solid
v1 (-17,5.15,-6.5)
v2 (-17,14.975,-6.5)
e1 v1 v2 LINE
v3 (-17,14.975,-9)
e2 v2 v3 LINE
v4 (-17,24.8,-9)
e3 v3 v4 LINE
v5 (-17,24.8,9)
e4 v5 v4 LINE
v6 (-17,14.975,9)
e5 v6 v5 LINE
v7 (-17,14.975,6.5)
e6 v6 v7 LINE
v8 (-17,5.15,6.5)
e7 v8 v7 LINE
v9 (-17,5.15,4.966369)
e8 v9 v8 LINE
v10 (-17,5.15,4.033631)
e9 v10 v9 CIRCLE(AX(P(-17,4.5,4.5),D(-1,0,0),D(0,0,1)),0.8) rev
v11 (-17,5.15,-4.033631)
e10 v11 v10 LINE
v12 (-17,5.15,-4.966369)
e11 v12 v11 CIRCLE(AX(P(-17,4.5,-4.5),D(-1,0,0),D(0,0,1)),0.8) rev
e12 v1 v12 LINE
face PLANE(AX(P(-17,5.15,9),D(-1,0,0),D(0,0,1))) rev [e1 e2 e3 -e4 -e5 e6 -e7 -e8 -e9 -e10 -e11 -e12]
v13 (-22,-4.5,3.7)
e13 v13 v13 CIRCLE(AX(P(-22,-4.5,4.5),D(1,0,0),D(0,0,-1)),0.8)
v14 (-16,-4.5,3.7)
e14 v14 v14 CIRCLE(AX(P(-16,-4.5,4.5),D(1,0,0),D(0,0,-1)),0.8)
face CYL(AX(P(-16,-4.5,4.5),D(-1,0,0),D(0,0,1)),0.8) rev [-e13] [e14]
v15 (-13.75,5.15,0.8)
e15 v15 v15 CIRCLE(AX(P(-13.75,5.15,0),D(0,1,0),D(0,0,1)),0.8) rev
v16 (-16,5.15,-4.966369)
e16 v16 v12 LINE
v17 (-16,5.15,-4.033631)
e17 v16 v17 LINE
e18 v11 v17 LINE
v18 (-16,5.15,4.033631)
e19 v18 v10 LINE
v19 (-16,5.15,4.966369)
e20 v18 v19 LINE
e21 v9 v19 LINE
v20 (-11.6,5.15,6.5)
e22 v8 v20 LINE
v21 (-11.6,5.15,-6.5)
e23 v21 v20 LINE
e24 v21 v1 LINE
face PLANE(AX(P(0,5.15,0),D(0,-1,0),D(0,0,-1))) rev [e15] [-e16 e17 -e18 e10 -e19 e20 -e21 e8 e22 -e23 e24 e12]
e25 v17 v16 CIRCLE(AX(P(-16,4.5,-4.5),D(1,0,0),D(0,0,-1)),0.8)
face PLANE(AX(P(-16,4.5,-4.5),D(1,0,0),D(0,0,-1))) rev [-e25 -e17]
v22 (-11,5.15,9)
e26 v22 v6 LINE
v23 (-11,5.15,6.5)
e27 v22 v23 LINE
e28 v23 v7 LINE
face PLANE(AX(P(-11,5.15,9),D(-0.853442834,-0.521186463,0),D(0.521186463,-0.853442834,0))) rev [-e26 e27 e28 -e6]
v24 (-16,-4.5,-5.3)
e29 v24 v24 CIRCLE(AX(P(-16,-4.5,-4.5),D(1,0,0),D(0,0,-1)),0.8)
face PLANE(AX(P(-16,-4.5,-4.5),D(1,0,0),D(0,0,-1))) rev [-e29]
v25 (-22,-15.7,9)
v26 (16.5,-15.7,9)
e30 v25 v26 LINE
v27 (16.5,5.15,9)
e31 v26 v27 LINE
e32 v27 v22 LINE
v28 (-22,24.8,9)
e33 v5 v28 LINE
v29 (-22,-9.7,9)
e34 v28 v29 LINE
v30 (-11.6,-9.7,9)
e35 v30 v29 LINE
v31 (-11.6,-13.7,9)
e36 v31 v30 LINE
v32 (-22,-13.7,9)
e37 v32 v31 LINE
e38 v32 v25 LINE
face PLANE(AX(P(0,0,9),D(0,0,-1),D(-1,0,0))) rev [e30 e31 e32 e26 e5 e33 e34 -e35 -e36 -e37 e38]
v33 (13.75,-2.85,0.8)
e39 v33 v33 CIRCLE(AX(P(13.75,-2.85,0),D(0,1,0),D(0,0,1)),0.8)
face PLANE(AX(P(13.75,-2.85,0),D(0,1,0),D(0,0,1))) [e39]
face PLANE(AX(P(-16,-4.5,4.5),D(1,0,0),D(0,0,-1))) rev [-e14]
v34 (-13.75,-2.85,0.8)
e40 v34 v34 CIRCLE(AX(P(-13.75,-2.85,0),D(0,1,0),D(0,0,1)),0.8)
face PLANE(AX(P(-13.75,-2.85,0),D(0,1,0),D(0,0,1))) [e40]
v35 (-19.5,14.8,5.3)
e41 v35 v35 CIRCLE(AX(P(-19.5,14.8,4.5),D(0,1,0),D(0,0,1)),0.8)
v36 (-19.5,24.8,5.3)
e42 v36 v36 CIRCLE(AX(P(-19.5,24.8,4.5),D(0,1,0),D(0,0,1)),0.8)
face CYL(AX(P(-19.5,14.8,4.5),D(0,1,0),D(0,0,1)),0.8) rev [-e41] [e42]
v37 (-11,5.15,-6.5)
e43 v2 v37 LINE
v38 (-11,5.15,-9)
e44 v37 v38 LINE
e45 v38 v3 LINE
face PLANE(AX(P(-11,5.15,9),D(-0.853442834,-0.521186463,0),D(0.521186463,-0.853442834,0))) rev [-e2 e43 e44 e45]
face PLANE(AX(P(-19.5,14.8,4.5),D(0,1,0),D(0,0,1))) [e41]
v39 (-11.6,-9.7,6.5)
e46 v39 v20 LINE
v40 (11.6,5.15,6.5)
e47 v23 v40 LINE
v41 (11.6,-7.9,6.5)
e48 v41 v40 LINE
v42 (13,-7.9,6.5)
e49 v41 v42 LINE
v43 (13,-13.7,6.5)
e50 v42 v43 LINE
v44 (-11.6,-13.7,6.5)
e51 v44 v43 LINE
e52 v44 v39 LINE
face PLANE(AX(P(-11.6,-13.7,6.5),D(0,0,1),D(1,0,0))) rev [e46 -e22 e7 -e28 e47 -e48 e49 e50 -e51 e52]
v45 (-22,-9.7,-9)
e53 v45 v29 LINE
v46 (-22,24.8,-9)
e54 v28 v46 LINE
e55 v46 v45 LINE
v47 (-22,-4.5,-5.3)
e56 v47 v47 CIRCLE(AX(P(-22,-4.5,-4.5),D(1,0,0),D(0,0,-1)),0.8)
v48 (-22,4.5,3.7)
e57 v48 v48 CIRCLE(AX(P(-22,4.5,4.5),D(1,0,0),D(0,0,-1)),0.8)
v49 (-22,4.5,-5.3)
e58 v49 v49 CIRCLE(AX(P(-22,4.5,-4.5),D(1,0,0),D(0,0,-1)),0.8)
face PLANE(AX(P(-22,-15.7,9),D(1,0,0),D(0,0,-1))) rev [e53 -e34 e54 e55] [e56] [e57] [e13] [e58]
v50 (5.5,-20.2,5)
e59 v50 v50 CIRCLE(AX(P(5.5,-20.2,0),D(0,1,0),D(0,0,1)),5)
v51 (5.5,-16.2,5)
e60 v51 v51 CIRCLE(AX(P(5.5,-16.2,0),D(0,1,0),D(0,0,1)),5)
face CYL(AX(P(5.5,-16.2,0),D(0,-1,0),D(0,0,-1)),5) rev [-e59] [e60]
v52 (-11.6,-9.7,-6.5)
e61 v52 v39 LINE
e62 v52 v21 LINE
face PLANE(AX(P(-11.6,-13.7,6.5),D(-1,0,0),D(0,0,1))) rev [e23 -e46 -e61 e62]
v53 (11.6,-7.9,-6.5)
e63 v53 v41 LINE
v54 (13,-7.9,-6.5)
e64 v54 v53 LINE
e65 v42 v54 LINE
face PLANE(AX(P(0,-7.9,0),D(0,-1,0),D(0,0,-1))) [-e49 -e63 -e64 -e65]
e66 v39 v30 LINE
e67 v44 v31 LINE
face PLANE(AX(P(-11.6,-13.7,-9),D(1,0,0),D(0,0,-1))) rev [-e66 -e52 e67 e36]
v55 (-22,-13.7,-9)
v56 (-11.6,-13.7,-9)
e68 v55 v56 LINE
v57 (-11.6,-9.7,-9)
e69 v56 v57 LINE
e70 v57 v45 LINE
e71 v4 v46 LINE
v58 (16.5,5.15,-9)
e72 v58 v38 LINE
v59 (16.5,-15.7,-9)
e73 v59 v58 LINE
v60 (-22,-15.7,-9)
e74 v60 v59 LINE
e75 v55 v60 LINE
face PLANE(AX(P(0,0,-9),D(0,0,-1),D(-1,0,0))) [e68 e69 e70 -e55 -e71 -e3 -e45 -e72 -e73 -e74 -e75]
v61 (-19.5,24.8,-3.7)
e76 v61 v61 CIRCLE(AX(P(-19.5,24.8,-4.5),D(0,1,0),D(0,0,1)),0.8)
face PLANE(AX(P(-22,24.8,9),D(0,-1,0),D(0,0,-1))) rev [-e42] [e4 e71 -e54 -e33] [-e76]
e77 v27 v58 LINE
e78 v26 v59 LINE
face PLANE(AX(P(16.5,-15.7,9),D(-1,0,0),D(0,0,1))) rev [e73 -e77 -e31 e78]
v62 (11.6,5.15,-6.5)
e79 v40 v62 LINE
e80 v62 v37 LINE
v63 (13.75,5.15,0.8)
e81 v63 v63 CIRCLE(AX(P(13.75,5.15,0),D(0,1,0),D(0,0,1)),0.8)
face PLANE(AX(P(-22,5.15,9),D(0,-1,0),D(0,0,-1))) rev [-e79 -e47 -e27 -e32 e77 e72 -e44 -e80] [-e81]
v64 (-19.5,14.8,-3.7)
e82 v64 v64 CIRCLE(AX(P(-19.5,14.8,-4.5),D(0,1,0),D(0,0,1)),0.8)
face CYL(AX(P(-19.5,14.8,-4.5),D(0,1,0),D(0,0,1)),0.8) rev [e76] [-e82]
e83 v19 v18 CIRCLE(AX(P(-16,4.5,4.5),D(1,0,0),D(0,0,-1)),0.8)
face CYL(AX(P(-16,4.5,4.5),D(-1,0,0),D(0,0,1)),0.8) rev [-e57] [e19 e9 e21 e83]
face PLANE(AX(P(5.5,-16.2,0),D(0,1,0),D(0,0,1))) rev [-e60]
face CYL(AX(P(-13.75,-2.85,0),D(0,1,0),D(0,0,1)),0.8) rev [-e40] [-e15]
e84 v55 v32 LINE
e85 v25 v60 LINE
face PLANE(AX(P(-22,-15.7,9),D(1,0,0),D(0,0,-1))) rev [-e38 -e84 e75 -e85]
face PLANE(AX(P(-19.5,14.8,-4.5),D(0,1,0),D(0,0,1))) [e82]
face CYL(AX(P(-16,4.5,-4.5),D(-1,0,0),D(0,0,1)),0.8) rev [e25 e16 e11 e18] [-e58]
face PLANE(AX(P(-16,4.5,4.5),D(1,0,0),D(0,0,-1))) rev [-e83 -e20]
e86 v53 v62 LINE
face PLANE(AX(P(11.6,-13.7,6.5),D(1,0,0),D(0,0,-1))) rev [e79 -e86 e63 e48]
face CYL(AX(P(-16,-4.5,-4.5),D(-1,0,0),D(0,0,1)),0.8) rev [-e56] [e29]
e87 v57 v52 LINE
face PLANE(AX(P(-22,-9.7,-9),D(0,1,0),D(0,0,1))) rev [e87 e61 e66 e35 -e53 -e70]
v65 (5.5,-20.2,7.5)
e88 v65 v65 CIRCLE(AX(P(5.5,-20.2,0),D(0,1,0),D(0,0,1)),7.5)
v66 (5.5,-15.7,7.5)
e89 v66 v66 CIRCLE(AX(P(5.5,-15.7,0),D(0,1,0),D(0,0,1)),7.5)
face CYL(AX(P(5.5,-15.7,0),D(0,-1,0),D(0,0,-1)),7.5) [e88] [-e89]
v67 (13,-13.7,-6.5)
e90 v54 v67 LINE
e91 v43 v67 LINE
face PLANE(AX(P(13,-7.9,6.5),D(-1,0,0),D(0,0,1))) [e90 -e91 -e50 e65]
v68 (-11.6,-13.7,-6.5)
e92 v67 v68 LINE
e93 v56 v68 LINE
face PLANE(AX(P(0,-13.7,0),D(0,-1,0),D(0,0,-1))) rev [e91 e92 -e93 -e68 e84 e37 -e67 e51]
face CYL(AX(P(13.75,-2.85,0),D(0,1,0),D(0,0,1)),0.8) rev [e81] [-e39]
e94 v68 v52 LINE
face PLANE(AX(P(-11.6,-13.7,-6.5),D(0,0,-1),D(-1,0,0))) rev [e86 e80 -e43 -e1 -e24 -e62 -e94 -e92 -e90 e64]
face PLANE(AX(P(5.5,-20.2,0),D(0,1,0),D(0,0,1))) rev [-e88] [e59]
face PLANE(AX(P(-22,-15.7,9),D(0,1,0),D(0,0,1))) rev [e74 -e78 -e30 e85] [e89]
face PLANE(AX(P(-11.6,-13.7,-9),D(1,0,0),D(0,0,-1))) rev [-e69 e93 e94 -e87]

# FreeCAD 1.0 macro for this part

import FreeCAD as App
import Part
import Sketcher


def add_polygon(sketch, points):
    """Adds a closed chain of lines whose ends are joined by coincident constraints."""
    first, n = sketch.GeometryCount, len(points)
    for a, b in zip(points, points[1:] + points[:1]):
        sketch.addGeometry(Part.LineSegment(App.Vector(*a, 0), App.Vector(*b, 0)), False)
    for i in range(n):
        sketch.addConstraint(Sketcher.Constraint("Coincident", first + i, 2, first + (i + 1) % n, 1))

doc = App.newDocument("Part")
body = doc.addObject("PartDesign::Body", "Body")

# Sketch on XY plane
sketch1 = body.newObject("Sketcher::SketchObject", "Sketch")
sketch1.AttachmentSupport = (doc.getObject("XY_Plane"), [""])
sketch1.MapMode = "FlatFace"
add_polygon(sketch1, [(-22, 5), (-22, -16), (16, -16), (16, 5)])  # lines 0-3
sketch1.addConstraint([
    Sketcher.Constraint("Vertical", 0),
    Sketcher.Constraint("Horizontal", 1),
    Sketcher.Constraint("Vertical", 2),
    Sketcher.Constraint("Horizontal", 3),
    Sketcher.Constraint("DistanceX", 1, 1, 1, 2, 38.5),
    Sketcher.Constraint("DistanceX", 0, 2, -1, 1, 22.0),
    Sketcher.Constraint("DistanceY", 0, 2, 0, 1, 20.85),
    Sketcher.Constraint("DistanceY", 0, 2, -1, 1, 15.7),
])
pad1 = body.newObject("PartDesign::Pad", "Pad")
pad1.Profile = sketch1
pad1.Length = 18
pad1.Midplane = True

# Sketch on XY plane
sketch2 = body.newObject("Sketcher::SketchObject", "Sketch001")
sketch2.AttachmentSupport = (doc.getObject("XY_Plane"), [""])
sketch2.MapMode = "FlatFace"
add_polygon(sketch2, [(-22, 25), (-22, 5), (-17, 5), (-17, 25)])  # lines 0-3
sketch2.addConstraint([
    Sketcher.Constraint("Vertical", 0),
    Sketcher.Constraint("Horizontal", 1),
    Sketcher.Constraint("Vertical", 2),
    Sketcher.Constraint("Horizontal", 3),
    Sketcher.Constraint("DistanceX", 1, 1, 1, 2, 5.0),
    Sketcher.Constraint("DistanceX", 0, 2, -1, 1, 22.0),
    Sketcher.Constraint("DistanceY", 0, 2, 0, 1, 19.65),
    Sketcher.Constraint("DistanceY", -1, 1, 2, 2, 24.8),
])
pad2 = body.newObject("PartDesign::Pad", "Pad001")
pad2.Profile = sketch2
pad2.Length = 18
pad2.Midplane = True

# Sketch on XZ plane
sketch3 = body.newObject("Sketcher::SketchObject", "Sketch002")
sketch3.AttachmentSupport = (doc.getObject("XZ_Plane"), [""])
sketch3.MapMode = "FlatFace"
sketch3.AttachmentOffset = App.Placement(App.Vector(0, 0, 20.2), App.Rotation())
sketch3.addGeometry(Part.Circle(App.Vector(6, 0, 0), App.Vector(0, 0, 1), 8), False)
sketch3.addConstraint([
    Sketcher.Constraint("PointOnObject", 0, 3, -1),
    Sketcher.Constraint("Diameter", 0, 15.0),
    Sketcher.Constraint("DistanceX", -1, 1, 0, 3, 5.5),
])
pad3 = body.newObject("PartDesign::Pad", "Pad002")
pad3.Profile = sketch3
pad3.Length = 4.5
pad3.Reversed = True

# Sketch on XZ plane
sketch4 = body.newObject("Sketcher::SketchObject", "Sketch003")
sketch4.AttachmentSupport = (doc.getObject("XZ_Plane"), [""])
sketch4.MapMode = "FlatFace"
sketch4.AttachmentOffset = App.Placement(App.Vector(0, 0, -5.15), App.Rotation())
add_polygon(sketch4, [(-12, -6), (-12, 6), (12, 6), (12, -6)])  # lines 0-3
sketch4.addConstraint([
    Sketcher.Constraint("Vertical", 0),
    Sketcher.Constraint("Horizontal", 1),
    Sketcher.Constraint("Vertical", 2),
    Sketcher.Constraint("Horizontal", 3),
    Sketcher.Constraint("Symmetric", 0, 2, 2, 2, -1, 1),
    Sketcher.Constraint("DistanceY", 0, 1, 0, 2, 13.0),
    Sketcher.Constraint("DistanceX", 1, 1, 1, 2, 23.2),
])
pocket1 = body.newObject("PartDesign::Pocket", "Pocket")
pocket1.Profile = sketch4
pocket1.Length = 18.85
pocket1.Reversed = True

# Sketch on XZ plane
sketch5 = body.newObject("Sketcher::SketchObject", "Sketch004")
sketch5.AttachmentSupport = (doc.getObject("XZ_Plane"), [""])
sketch5.MapMode = "FlatFace"
sketch5.AttachmentOffset = App.Placement(App.Vector(0, 0, 20.2), App.Rotation())
sketch5.addGeometry(Part.Circle(App.Vector(6, 0, 0), App.Vector(0, 0, 1), 5), False)
sketch5.addConstraint([
    Sketcher.Constraint("PointOnObject", 0, 3, -1),
    Sketcher.Constraint("Diameter", 0, 10.0),
    Sketcher.Constraint("DistanceX", -1, 1, 0, 3, 5.5),
])
pocket2 = body.newObject("PartDesign::Pocket", "Pocket001")
pocket2.Profile = sketch5
pocket2.Length = 4

# Sketch on XZ plane
sketch6 = body.newObject("Sketcher::SketchObject", "Sketch005")
sketch6.AttachmentSupport = (doc.getObject("XZ_Plane"), [""])
sketch6.MapMode = "FlatFace"
sketch6.AttachmentOffset = App.Placement(App.Vector(0, 0, 13.7), App.Rotation())
add_polygon(sketch6, [(11.6, -6.5), (11.6, 6.5), (13, 6.5), (13, -6.5)])  # lines 0-3
sketch6.addConstraint([
    Sketcher.Constraint("Vertical", 0),
    Sketcher.Constraint("Horizontal", 1),
    Sketcher.Constraint("Vertical", 2),
    Sketcher.Constraint("Horizontal", 3),
    Sketcher.Constraint("DistanceY", 0, 1, 0, 2, 13.0),
    Sketcher.Constraint("DistanceX", 1, 1, 1, 2, 1.4),
    Sketcher.Constraint("DistanceX", -1, 1, 1, 2, 13.0),
    Sketcher.Constraint("DistanceY", -1, 1, 0, 2, 6.5),
])
pocket3 = body.newObject("PartDesign::Pocket", "Pocket002")
pocket3.Profile = sketch6
pocket3.Length = 5.8

# Sketch on XY plane
sketch7 = body.newObject("Sketcher::SketchObject", "Sketch006")
sketch7.AttachmentSupport = (doc.getObject("XY_Plane"), [""])
sketch7.MapMode = "FlatFace"
add_polygon(sketch7, [(-22, -9.7), (-22, -13.7), (-11.6, -13.7), (-11.6, -9.7)])  # lines 0-3
sketch7.addConstraint([
    Sketcher.Constraint("Vertical", 0),
    Sketcher.Constraint("Horizontal", 1),
    Sketcher.Constraint("Vertical", 2),
    Sketcher.Constraint("Horizontal", 3),
    Sketcher.Constraint("DistanceY", 0, 2, 0, 1, 4.0),
    Sketcher.Constraint("DistanceX", 1, 1, 1, 2, 10.4),
    Sketcher.Constraint("DistanceX", 0, 2, -1, 1, 22.0),
    Sketcher.Constraint("DistanceY", 0, 2, -1, 1, 13.7),
])
pocket4 = body.newObject("PartDesign::Pocket", "Pocket003")
pocket4.Profile = sketch7
pocket4.Type = "ThroughAll"
pocket4.Midplane = True

# Sketch on XZ plane
sketch8 = body.newObject("Sketcher::SketchObject", "Sketch007")
sketch8.AttachmentSupport = (doc.getObject("XZ_Plane"), [""])
sketch8.MapMode = "FlatFace"
sketch8.AttachmentOffset = App.Placement(App.Vector(0, 0, -5.15), App.Rotation())
sketch8.addGeometry(Part.Circle(App.Vector(-13.8, 0, 0), App.Vector(0, 0, 1), 0.8), False)
sketch8.addConstraint([
    Sketcher.Constraint("PointOnObject", 0, 3, -1),
    Sketcher.Constraint("Diameter", 0, 1.6),
    Sketcher.Constraint("DistanceX", 0, 3, -1, 1, 13.75),
])
pocket5 = body.newObject("PartDesign::Pocket", "Pocket004")
pocket5.Profile = sketch8
pocket5.Length = 8
pocket5.Reversed = True

# Sketch on XZ plane
sketch9 = body.newObject("Sketcher::SketchObject", "Sketch008")
sketch9.AttachmentSupport = (doc.getObject("XZ_Plane"), [""])
sketch9.MapMode = "FlatFace"
sketch9.AttachmentOffset = App.Placement(App.Vector(0, 0, -5.15), App.Rotation())
sketch9.addGeometry(Part.Circle(App.Vector(13.8, 0, 0), App.Vector(0, 0, 1), 0.8), False)
sketch9.addConstraint([
    Sketcher.Constraint("PointOnObject", 0, 3, -1),
    Sketcher.Constraint("Diameter", 0, 1.6),
    Sketcher.Constraint("DistanceX", -1, 1, 0, 3, 13.75),
])
pocket6 = body.newObject("PartDesign::Pocket", "Pocket005")
pocket6.Profile = sketch9
pocket6.Length = 8
pocket6.Reversed = True

# Sketch on XZ plane
sketch10 = body.newObject("Sketcher::SketchObject", "Sketch009")
sketch10.AttachmentSupport = (doc.getObject("XZ_Plane"), [""])
sketch10.MapMode = "FlatFace"
sketch10.AttachmentOffset = App.Placement(App.Vector(0, 0, -24.8), App.Rotation())
sketch10.addGeometry(Part.Circle(App.Vector(-19.5, 4.5, 0), App.Vector(0, 0, 1), 0.8), False)
sketch10.addConstraint([
    Sketcher.Constraint("Diameter", 0, 1.6),
    Sketcher.Constraint("DistanceX", 0, 3, -1, 1, 19.5),
    Sketcher.Constraint("DistanceY", -1, 1, 0, 3, 4.5),
])
pocket7 = body.newObject("PartDesign::Pocket", "Pocket006")
pocket7.Profile = sketch10
pocket7.Length = 10
pocket7.Reversed = True

# Sketch on XZ plane
sketch11 = body.newObject("Sketcher::SketchObject", "Sketch010")
sketch11.AttachmentSupport = (doc.getObject("XZ_Plane"), [""])
sketch11.MapMode = "FlatFace"
sketch11.AttachmentOffset = App.Placement(App.Vector(0, 0, -24.8), App.Rotation())
sketch11.addGeometry(Part.Circle(App.Vector(-19.5, -4.5, 0), App.Vector(0, 0, 1), 0.8), False)
sketch11.addConstraint([
    Sketcher.Constraint("Diameter", 0, 1.6),
    Sketcher.Constraint("DistanceX", 0, 3, -1, 1, 19.5),
    Sketcher.Constraint("DistanceY", 0, 3, -1, 1, 4.5),
])
pocket8 = body.newObject("PartDesign::Pocket", "Pocket007")
pocket8.Profile = sketch11
pocket8.Length = 10
pocket8.Reversed = True

# Sketch on XY plane
sketch12 = body.newObject("Sketcher::SketchObject", "Sketch011")
sketch12.AttachmentSupport = (doc.getObject("XY_Plane"), [""])
sketch12.MapMode = "FlatFace"
add_polygon(sketch12, [(-17, 5), (-11, 5), (-17, 15)])  # lines 0-2
sketch12.addConstraint([
    Sketcher.Constraint("Horizontal", 0),
    Sketcher.Constraint("Vertical", 2),
    Sketcher.Constraint("DistanceX", 0, 1, 0, 2, 6.0),
    Sketcher.Constraint("DistanceX", 0, 2, -1, 1, 11.0),
    Sketcher.Constraint("DistanceY", 2, 2, 2, 1, 9.825),
    Sketcher.Constraint("DistanceY", -1, 1, 0, 2, 5.15),
])
pad4 = body.newObject("PartDesign::Pad", "Pad003")
pad4.Profile = sketch12
pad4.Length = 18
pad4.Midplane = True

# Sketch on XZ plane
sketch13 = body.newObject("Sketcher::SketchObject", "Sketch012")
sketch13.AttachmentSupport = (doc.getObject("XZ_Plane"), [""])
sketch13.MapMode = "FlatFace"
sketch13.AttachmentOffset = App.Placement(App.Vector(0, 0, -15), App.Rotation())
add_polygon(sketch13, [(-17, -6), (-17, 6), (-11, 6), (-11, -6)])  # lines 0-3
sketch13.addConstraint([
    Sketcher.Constraint("Vertical", 0),
    Sketcher.Constraint("Horizontal", 1),
    Sketcher.Constraint("Vertical", 2),
    Sketcher.Constraint("Horizontal", 3),
    Sketcher.Constraint("DistanceX", 1, 1, 1, 2, 6.0),
    Sketcher.Constraint("DistanceY", 0, 1, 0, 2, 13.0),
    Sketcher.Constraint("DistanceX", 0, 2, -1, 1, 17.0),
    Sketcher.Constraint("DistanceY", -1, 1, 0, 2, 6.5),
])
pocket9 = body.newObject("PartDesign::Pocket", "Pocket008")
pocket9.Profile = sketch13
pocket9.Length = 9.85
pocket9.Reversed = True

# Sketch on YZ plane
sketch14 = body.newObject("Sketcher::SketchObject", "Sketch013")
sketch14.AttachmentSupport = (doc.getObject("YZ_Plane"), [""])
sketch14.MapMode = "FlatFace"
sketch14.AttachmentOffset = App.Placement(App.Vector(0, 0, -22), App.Rotation())
sketch14.addGeometry([
    Part.Circle(App.Vector(-4.5, 4.5, 0), App.Vector(0, 0, 1), 0.8),
    Part.Circle(App.Vector(-4.5, -4.5, 0), App.Vector(0, 0, 1), 0.8),
    Part.Circle(App.Vector(4.5, 4.5, 0), App.Vector(0, 0, 1), 0.8),
    Part.Circle(App.Vector(4.5, -4.5, 0), App.Vector(0, 0, 1), 0.8),
], False)
sketch14.addConstraint([
    Sketcher.Constraint("Equal", 0, 1),
    Sketcher.Constraint("Equal", 1, 2),
    Sketcher.Constraint("Equal", 2, 3),
    Sketcher.Constraint("Symmetric", 1, 3, 2, 3, -1, 1),
    Sketcher.Constraint("Symmetric", 0, 3, 3, 3, -1, 1),
    Sketcher.Constraint("Symmetric", 0, 3, 2, 3, -2),
    Sketcher.Constraint("Diameter", 0, 1.6),
    Sketcher.Constraint("DistanceY", 1, 3, 0, 3, 9.0),
    Sketcher.Constraint("DistanceX", 0, 3, 2, 3, 9.0),
])
pocket10 = body.newObject("PartDesign::Pocket", "Pocket009")
pocket10.Profile = sketch14
pocket10.Length = 6
pocket10.Reversed = True

doc.recompute()
